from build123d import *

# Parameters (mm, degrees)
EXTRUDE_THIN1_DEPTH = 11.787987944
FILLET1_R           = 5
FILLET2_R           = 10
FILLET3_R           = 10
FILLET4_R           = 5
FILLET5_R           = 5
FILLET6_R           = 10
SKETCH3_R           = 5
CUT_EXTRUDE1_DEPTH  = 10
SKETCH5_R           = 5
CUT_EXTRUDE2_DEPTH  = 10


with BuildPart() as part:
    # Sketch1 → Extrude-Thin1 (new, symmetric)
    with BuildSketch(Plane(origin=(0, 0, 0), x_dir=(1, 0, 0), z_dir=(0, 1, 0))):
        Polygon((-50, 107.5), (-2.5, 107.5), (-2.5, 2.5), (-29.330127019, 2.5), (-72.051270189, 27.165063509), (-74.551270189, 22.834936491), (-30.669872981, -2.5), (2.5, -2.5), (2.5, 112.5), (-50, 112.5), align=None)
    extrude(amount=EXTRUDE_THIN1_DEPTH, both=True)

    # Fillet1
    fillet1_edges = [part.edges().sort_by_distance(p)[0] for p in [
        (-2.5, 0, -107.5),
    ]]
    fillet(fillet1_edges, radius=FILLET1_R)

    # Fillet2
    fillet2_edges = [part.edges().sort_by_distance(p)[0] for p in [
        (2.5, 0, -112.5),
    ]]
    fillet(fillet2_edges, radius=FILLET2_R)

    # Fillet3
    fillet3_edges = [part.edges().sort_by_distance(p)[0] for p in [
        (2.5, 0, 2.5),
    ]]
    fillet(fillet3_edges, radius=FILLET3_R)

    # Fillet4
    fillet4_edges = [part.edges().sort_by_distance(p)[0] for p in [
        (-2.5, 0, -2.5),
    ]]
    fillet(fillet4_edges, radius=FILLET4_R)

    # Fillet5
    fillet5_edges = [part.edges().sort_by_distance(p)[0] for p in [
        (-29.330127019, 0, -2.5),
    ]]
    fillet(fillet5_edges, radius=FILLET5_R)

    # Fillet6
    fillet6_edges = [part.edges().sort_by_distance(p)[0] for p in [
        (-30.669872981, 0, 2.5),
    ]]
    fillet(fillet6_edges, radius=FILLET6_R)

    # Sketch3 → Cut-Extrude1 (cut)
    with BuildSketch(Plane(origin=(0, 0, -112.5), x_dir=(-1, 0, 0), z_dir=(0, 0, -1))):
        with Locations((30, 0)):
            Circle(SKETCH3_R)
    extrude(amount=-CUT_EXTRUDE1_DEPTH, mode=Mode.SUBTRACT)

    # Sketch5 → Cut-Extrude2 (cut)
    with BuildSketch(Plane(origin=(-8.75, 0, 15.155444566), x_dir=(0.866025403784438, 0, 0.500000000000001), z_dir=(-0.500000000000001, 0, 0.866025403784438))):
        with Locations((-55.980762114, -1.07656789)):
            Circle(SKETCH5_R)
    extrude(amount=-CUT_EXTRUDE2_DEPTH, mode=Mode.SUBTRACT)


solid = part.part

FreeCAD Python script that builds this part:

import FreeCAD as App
import Part
import Sketcher

V = App.Vector
Q = App.Units.Quantity


def edges_at(feature, points):
    """Names of the edges that pass closest to the given points."""
    edges = feature.Shape.Edges
    near = lambda p: min(range(len(edges)), key=lambda i: edges[i].distToShape(Part.Vertex(*p))[0])
    return sorted({f"Edge{near(p) + 1}" for p in points})


def add_polygon(sketch, points):
    """Adds a closed chain of lines whose ends are joined by coincident constraints."""
    first, n = sketch.GeometryCount, len(points)
    for a, b in zip(points, points[1:] + points[:1]):
        sketch.addGeometry(Part.LineSegment(App.Vector(*a, 0), App.Vector(*b, 0)), False)
    for i in range(n):
        sketch.addConstraint(Sketcher.Constraint("Coincident", first + i, 2, first + (i + 1) % n, 1))

doc = App.newDocument("Part")
body = doc.addObject("PartDesign::Body", "Body")

# Sketch on XZ plane
sketch1 = body.newObject("Sketcher::SketchObject", "Sketch")
sketch1.AttachmentSupport = (doc.getObject("XZ_Plane"), [""])
sketch1.MapMode = "FlatFace"
add_polygon(sketch1, [(-50, -107.5), (-2.5, -107.5), (-2.5, -2.5), (-29.3, -2.5), (-72.1, -27.2), (-74.6, -22.8), (-30.7, 2.5), (2.5, 2.5), (2.5, -112.5), (-50, -112.5)])  # lines 0-9
sketch1.addConstraint([
    Sketcher.Constraint("Horizontal", 0),
    Sketcher.Constraint("Vertical", 1),
    Sketcher.Constraint("Horizontal", 2),
    Sketcher.Constraint("Horizontal", 6),
    Sketcher.Constraint("Vertical", 7),
    Sketcher.Constraint("Horizontal", 8),
    Sketcher.Constraint("Vertical", 9),
    Sketcher.Constraint("Symmetric", 1, 2, 6, 2, -1, 1),
    Sketcher.Constraint("Perpendicular", 3, 4),
    Sketcher.Constraint("Perpendicular", 4, 5),
    Sketcher.Constraint("DistanceY", 1, 1, 1, 2, Q("105 mm")),
    Sketcher.Constraint("DistanceY", 7, 2, 7, 1, Q("115 mm")),
    Sketcher.Constraint("DistanceY", 9, 1, 9, 2, Q("5 mm")),
    Sketcher.Constraint("Angle", 3, Q("-150 deg")),
    Sketcher.Constraint("Distance", 4, Q("5 mm")),
    Sketcher.Constraint("DistanceX", 0, 1, 0, 2, Q("47.5 mm")),
    Sketcher.Constraint("DistanceX", 8, 2, 8, 1, Q("52.5 mm")),
    Sketcher.Constraint("DistanceX", 2, 2, 2, 1, Q("26.830127 mm")),
    Sketcher.Constraint("DistanceX", 3, 2, -1, 1, Q("72.05127 mm")),
])
pad1 = body.newObject("PartDesign::Pad", "Pad")
pad1.Profile = sketch1
pad1.Length = 23.575976
pad1.Midplane = True
doc.recompute()

fillet = body.newObject("PartDesign::Fillet", "Fillet")
fillet.Base = (pad1, edges_at(pad1, [(-2.5, 0, -107.5)]))
fillet.Radius = 5
doc.recompute()

fillet2 = body.newObject("PartDesign::Fillet", "Fillet001")
fillet2.Base = (fillet, edges_at(fillet, [(2.5, 0, -112.5)]))
fillet2.Radius = 10
doc.recompute()

fillet3 = body.newObject("PartDesign::Fillet", "Fillet002")
fillet3.Base = (fillet2, edges_at(fillet2, [(2.5, 0, 2.5)]))
fillet3.Radius = 10
doc.recompute()

fillet4 = body.newObject("PartDesign::Fillet", "Fillet003")
fillet4.Base = (fillet3, edges_at(fillet3, [(-2.5, 0, -2.5)]))
fillet4.Radius = 5
doc.recompute()

fillet5 = body.newObject("PartDesign::Fillet", "Fillet004")
fillet5.Base = (fillet4, edges_at(fillet4, [(-29.33, 0, -2.5)]))
fillet5.Radius = 5
doc.recompute()

fillet6 = body.newObject("PartDesign::Fillet", "Fillet005")
fillet6.Base = (fillet5, edges_at(fillet5, [(-30.67, 0, 2.5)]))
fillet6.Radius = 10

# Sketch on XY plane
sketch2 = body.newObject("Sketcher::SketchObject", "Sketch001")
sketch2.AttachmentSupport = (doc.getObject("XY_Plane"), [""])
sketch2.MapMode = "FlatFace"
sketch2.AttachmentOffset = App.Placement(V(0, 0, -112.5), App.Rotation())
sketch2.addGeometry(Part.Circle(V(-30, 0, 0), V(0, 0, 1), 5), False)
sketch2.addConstraint([
    Sketcher.Constraint("PointOnObject", 0, 3, -1),
    Sketcher.Constraint("Diameter", 0, Q("10 mm")),
    Sketcher.Constraint("DistanceX", 0, 3, -1, 1, Q("30 mm")),
])
pocket1 = body.newObject("PartDesign::Pocket", "Pocket")
pocket1.Profile = sketch2
pocket1.Length = 10
pocket1.Reversed = True

# Sketch on an angled plane
sketch3 = body.newObject("Sketcher::SketchObject", "Sketch002")
sketch3.Placement = App.Placement(V(-8.75, 0, 15.155445), App.Rotation(V(0.866025404, 0, 0.5), V(0, 1, 0), V(-0.5, 0, 0.866025404), "ZXY"))
sketch3.addGeometry(Part.Circle(V(-56, -1, 0), V(0, 0, 1), 5), False)
sketch3.addConstraint([
    Sketcher.Constraint("Diameter", 0, Q("10 mm")),
    Sketcher.Constraint("DistanceX", 0, 3, -1, 1, Q("55.980762 mm")),
    Sketcher.Constraint("DistanceY", 0, 3, -1, 1, Q("1.076568 mm")),
])
pocket2 = body.newObject("PartDesign::Pocket", "Pocket001")
pocket2.Profile = sketch3
pocket2.Length = 10

doc.recompute()
